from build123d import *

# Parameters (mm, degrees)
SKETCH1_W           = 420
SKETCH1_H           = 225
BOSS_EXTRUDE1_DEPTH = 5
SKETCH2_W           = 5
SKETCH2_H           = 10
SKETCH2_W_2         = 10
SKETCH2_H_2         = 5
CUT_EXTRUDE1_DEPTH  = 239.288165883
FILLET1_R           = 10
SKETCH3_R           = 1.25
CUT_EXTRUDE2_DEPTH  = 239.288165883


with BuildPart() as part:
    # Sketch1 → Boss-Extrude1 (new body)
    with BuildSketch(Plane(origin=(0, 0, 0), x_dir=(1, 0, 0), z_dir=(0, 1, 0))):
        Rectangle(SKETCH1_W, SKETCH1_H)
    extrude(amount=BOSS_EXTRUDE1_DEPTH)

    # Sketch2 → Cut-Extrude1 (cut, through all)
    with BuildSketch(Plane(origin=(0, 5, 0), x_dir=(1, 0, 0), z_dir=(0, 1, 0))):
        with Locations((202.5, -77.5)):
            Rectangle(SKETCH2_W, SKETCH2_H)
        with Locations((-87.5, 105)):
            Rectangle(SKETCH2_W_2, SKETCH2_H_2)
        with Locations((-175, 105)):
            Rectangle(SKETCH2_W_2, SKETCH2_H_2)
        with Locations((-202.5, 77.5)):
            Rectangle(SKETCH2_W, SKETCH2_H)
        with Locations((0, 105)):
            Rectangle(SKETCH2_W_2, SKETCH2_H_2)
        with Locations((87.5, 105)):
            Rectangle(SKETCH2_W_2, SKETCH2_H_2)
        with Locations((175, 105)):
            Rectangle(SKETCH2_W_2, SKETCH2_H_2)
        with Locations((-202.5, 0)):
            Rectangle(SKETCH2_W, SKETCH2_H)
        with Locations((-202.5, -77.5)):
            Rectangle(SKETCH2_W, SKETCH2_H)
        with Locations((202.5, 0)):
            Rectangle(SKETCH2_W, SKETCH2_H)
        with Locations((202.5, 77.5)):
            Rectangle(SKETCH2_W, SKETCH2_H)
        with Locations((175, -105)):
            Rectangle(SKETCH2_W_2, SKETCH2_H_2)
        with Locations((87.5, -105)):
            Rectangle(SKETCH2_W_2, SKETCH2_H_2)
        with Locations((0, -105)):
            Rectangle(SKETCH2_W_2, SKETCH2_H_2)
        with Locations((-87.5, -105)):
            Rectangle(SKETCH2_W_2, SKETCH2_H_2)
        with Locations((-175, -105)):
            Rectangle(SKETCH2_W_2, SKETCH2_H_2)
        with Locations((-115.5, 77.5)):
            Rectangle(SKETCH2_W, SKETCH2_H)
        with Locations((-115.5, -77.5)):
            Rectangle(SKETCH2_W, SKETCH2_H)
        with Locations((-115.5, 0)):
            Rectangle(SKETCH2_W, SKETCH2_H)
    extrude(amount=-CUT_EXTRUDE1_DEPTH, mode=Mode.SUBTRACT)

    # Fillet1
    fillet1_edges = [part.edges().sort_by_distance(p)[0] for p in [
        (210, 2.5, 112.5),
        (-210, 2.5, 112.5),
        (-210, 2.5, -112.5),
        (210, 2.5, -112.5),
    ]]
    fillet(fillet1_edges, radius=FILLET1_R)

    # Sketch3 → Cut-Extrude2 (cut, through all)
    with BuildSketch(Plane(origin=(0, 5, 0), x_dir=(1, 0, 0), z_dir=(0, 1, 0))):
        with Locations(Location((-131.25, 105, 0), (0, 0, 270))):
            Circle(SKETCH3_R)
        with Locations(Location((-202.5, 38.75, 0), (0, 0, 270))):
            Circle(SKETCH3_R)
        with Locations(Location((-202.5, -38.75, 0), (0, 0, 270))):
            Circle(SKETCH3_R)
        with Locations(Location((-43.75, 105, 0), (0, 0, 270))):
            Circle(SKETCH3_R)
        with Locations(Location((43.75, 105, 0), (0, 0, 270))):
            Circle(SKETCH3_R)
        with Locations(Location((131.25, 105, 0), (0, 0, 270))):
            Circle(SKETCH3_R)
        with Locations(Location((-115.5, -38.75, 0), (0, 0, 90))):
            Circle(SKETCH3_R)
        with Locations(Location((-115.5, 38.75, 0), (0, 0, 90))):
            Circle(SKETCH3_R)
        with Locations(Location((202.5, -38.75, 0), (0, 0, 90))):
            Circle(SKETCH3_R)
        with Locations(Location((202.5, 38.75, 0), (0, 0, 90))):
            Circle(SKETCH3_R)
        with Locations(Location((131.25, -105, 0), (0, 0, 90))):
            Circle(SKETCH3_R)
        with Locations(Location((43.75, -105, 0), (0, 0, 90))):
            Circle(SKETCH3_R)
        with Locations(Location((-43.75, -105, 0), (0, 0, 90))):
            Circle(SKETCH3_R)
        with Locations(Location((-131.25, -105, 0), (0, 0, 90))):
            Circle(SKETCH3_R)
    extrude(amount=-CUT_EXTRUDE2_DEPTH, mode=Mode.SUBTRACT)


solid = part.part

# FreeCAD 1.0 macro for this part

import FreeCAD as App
import Part
import Sketcher

V = App.Vector
Q = App.Units.Quantity


def edges_at(feature, points):
    """Names of the edges that pass closest to the given points."""
    edges = feature.Shape.Edges
    near = lambda p: min(range(len(edges)), key=lambda i: edges[i].distToShape(Part.Vertex(*p))[0])
    return sorted({f"Edge{near(p) + 1}" for p in points})


def add_polygon(sketch, points):
    """Adds a closed chain of lines whose ends are joined by coincident constraints."""
    first, n = sketch.GeometryCount, len(points)
    for a, b in zip(points, points[1:] + points[:1]):
        sketch.addGeometry(Part.LineSegment(App.Vector(*a, 0), App.Vector(*b, 0)), False)
    for i in range(n):
        sketch.addConstraint(Sketcher.Constraint("Coincident", first + i, 2, first + (i + 1) % n, 1))

doc = App.newDocument("Part")
body = doc.addObject("PartDesign::Body", "Body")

sketch1 = body.newObject("Sketcher::SketchObject", "Sketch")
sketch1.AttachmentSupport = (doc.getObject("XZ_Plane"), [""])
sketch1.MapMode = "FlatFace"
add_polygon(sketch1, [(-210, -112.5), (-210, 112.5), (210, 112.5), (210, -112.5)])
sketch1.addConstraint([
    Sketcher.Constraint("Vertical", 0),
    Sketcher.Constraint("Horizontal", 1),
    Sketcher.Constraint("Vertical", 2),
    Sketcher.Constraint("Horizontal", 3),
    Sketcher.Constraint("Symmetric", 0, 2, 2, 2, -1, 1),
    Sketcher.Constraint("DistanceX", 1, 1, 1, 2, Q("420 mm")),
    Sketcher.Constraint("DistanceY", 0, 1, 0, 2, Q("225 mm")),
])
pad1 = body.newObject("PartDesign::Pad", "Pad")
pad1.Profile = sketch1
pad1.Length = 5
pad1.Reversed = True

sketch2 = body.newObject("Sketcher::SketchObject", "Sketch001")
sketch2.AttachmentSupport = (doc.getObject("XZ_Plane"), [""])
sketch2.MapMode = "FlatFace"
sketch2.AttachmentOffset = App.Placement(V(0, 0, -5), App.Rotation())
add_polygon(sketch2, [(200, 72.5), (200, 82.5), (205, 82.5), (205, 72.5)])
add_polygon(sketch2, [(-92.5, -107.5), (-92.5, -102.5), (-82.5, -102.5), (-82.5, -107.5)])
add_polygon(sketch2, [(-180, -107.5), (-180, -102.5), (-170, -102.5), (-170, -107.5)])
add_polygon(sketch2, [(-205, -82.5), (-205, -72.5), (-200, -72.5), (-200, -82.5)])
add_polygon(sketch2, [(-5, -107.5), (-5, -102.5), (5, -102.5), (5, -107.5)])
add_polygon(sketch2, [(82.5, -107.5), (82.5, -102.5), (92.5, -102.5), (92.5, -107.5)])
add_polygon(sketch2, [(170, -107.5), (170, -102.5), (180, -102.5), (180, -107.5)])
add_polygon(sketch2, [(-205, -5), (-205, 5), (-200, 5), (-200, -5)])
add_polygon(sketch2, [(-205, 72.5), (-205, 82.5), (-200, 82.5), (-200, 72.5)])
add_polygon(sketch2, [(200, -5), (200, 5), (205, 5), (205, -5)])
add_polygon(sketch2, [(200, -82.5), (200, -72.5), (205, -72.5), (205, -82.5)])
add_polygon(sketch2, [(170, 102.5), (170, 107.5), (180, 107.5), (180, 102.5)])
add_polygon(sketch2, [(82.5, 102.5), (82.5, 107.5), (92.5, 107.5), (92.5, 102.5)])
add_polygon(sketch2, [(-5, 102.5), (-5, 107.5), (5, 107.5), (5, 102.5)])
add_polygon(sketch2, [(-92.5, 102.5), (-92.5, 107.5), (-82.5, 107.5), (-82.5, 102.5)])
add_polygon(sketch2, [(-180, 102.5), (-180, 107.5), (-170, 107.5), (-170, 102.5)])
add_polygon(sketch2, [(-118, -82.5), (-118, -72.5), (-113, -72.5), (-113, -82.5)])
add_polygon(sketch2, [(-118, 72.5), (-118, 82.5), (-113, 82.5), (-113, 72.5)])
add_polygon(sketch2, [(-118, -5), (-118, 5), (-113, 5), (-113, -5)])
sketch2.addConstraint([
    Sketcher.Constraint("Vertical", 0),
    Sketcher.Constraint("Horizontal", 1),
    Sketcher.Constraint("Vertical", 2),
    Sketcher.Constraint("Horizontal", 3),
    Sketcher.Constraint("Vertical", 4),
    Sketcher.Constraint("Horizontal", 5),
    Sketcher.Constraint("Vertical", 6),
    Sketcher.Constraint("Horizontal", 7),
    Sketcher.Constraint("Vertical", 8),
    Sketcher.Constraint("Horizontal", 9),
    Sketcher.Constraint("Vertical", 10),
    Sketcher.Constraint("Horizontal", 11),
    Sketcher.Constraint("Vertical", 12),
    Sketcher.Constraint("Horizontal", 13),
    Sketcher.Constraint("Vertical", 14),
    Sketcher.Constraint("Horizontal", 15),
    Sketcher.Constraint("Vertical", 16),
    Sketcher.Constraint("Horizontal", 17),
    Sketcher.Constraint("Vertical", 18),
    Sketcher.Constraint("Horizontal", 19),
    Sketcher.Constraint("Vertical", 20),
    Sketcher.Constraint("Horizontal", 21),
    Sketcher.Constraint("Vertical", 22),
    Sketcher.Constraint("Horizontal", 23),
    Sketcher.Constraint("Vertical", 24),
    Sketcher.Constraint("Horizontal", 25),
    Sketcher.Constraint("Vertical", 26),
    Sketcher.Constraint("Horizontal", 27),
    Sketcher.Constraint("Vertical", 28),
    Sketcher.Constraint("Horizontal", 29),
    Sketcher.Constraint("Vertical", 30),
    Sketcher.Constraint("Horizontal", 31),
    Sketcher.Constraint("Vertical", 32),
    Sketcher.Constraint("Horizontal", 33),
    Sketcher.Constraint("Vertical", 34),
    Sketcher.Constraint("Horizontal", 35),
    Sketcher.Constraint("Vertical", 36),
    Sketcher.Constraint("Horizontal", 37),
    Sketcher.Constraint("Vertical", 38),
    Sketcher.Constraint("Horizontal", 39),
    Sketcher.Constraint("Vertical", 40),
    Sketcher.Constraint("Horizontal", 41),
    Sketcher.Constraint("Vertical", 42),
    Sketcher.Constraint("Horizontal", 43),
    Sketcher.Constraint("Vertical", 44),
    Sketcher.Constraint("Horizontal", 45),
    Sketcher.Constraint("Vertical", 46),
    Sketcher.Constraint("Horizontal", 47),
    Sketcher.Constraint("Vertical", 48),
    Sketcher.Constraint("Horizontal", 49),
    Sketcher.Constraint("Vertical", 50),
    Sketcher.Constraint("Horizontal", 51),
    Sketcher.Constraint("Vertical", 52),
    Sketcher.Constraint("Horizontal", 53),
    Sketcher.Constraint("Vertical", 54),
    Sketcher.Constraint("Horizontal", 55),
    Sketcher.Constraint("Vertical", 56),
    Sketcher.Constraint("Horizontal", 57),
    Sketcher.Constraint("Vertical", 58),
    Sketcher.Constraint("Horizontal", 59),
    Sketcher.Constraint("Vertical", 60),
    Sketcher.Constraint("Horizontal", 61),
    Sketcher.Constraint("Vertical", 62),
    Sketcher.Constraint("Horizontal", 63),
    Sketcher.Constraint("Vertical", 64),
    Sketcher.Constraint("Horizontal", 65),
    Sketcher.Constraint("Vertical", 66),
    Sketcher.Constraint("Horizontal", 67),
    Sketcher.Constraint("Vertical", 68),
    Sketcher.Constraint("Horizontal", 69),
    Sketcher.Constraint("Vertical", 70),
    Sketcher.Constraint("Horizontal", 71),
    Sketcher.Constraint("Vertical", 72),
    Sketcher.Constraint("Horizontal", 73),
    Sketcher.Constraint("Vertical", 74),
    Sketcher.Constraint("Horizontal", 75),
    Sketcher.Constraint("Symmetric", 2, 2, 12, 2, -1, 1),
    Sketcher.Constraint("Symmetric", 0, 2, 14, 2, -1, 1),
    Sketcher.Constraint("Symmetric", 30, 2, 36, 2, -1, 1),
    Sketcher.Constraint("Symmetric", 28, 2, 38, 2, -1, 1),
    Sketcher.Constraint("Symmetric", 34, 2, 40, 2, -1, 1),
    Sketcher.Constraint("Symmetric", 32, 2, 42, 2, -1, 1),
    Sketcher.Constraint("Symmetric", 10, 2, 44, 2, -1, 1),
    Sketcher.Constraint("Symmetric", 8, 2, 46, 2, -1, 1),
    Sketcher.Constraint("Symmetric", 6, 2, 48, 2, -1, 1),
    Sketcher.Constraint("Symmetric", 4, 2, 50, 2, -1, 1),
    Sketcher.Constraint("Symmetric", 18, 2, 52, 2, -1, 1),
    Sketcher.Constraint("Symmetric", 16, 2, 54, 2, -1, 1),
    Sketcher.Constraint("Symmetric", 22, 2, 56, 2, -1, 1),
    Sketcher.Constraint("Symmetric", 20, 2, 58, 2, -1, 1),
    Sketcher.Constraint("Symmetric", 26, 2, 60, 2, -1, 1),
    Sketcher.Constraint("Symmetric", 24, 2, 62, 2, -1, 1),
    Sketcher.Constraint("Symmetric", 5, 2, 20, 2, -2),
    Sketcher.Constraint("Symmetric", 7, 2, 22, 2, -2),
    Sketcher.Constraint("Symmetric", 9, 2, 24, 2, -2),
    Sketcher.Constraint("Symmetric", 11, 2, 26, 2, -2),
    Sketcher.Constraint("Symmetric", 1, 2, 32, 2, -2),
    Sketcher.Constraint("Symmetric", 3, 2, 34, 2, -2),
    Sketcher.Constraint("Symmetric", 67, 2, 68, 2, -1),
    Sketcher.Constraint("Symmetric", 65, 2, 70, 2, -1),
    Sketcher.Constraint("Horizontal", 5, 2, 8, 2),
    Sketcher.Constraint("Horizontal", 7, 2, 10, 2),
    Sketcher.Constraint("Horizontal", 9, 2, 16, 2),
    Sketcher.Constraint("Horizontal", 11, 2, 18, 2),
    Sketcher.Constraint("Horizontal", 29, 2, 36, 2),
    Sketcher.Constraint("Horizontal", 41, 2, 64, 2),
    Sketcher.Constraint("Horizontal", 43, 2, 66, 2),
    Sketcher.Constraint("Horizontal", 37, 2, 72, 2),
    Sketcher.Constraint("Horizontal", 39, 2, 74, 2),
    Sketcher.Constraint("Vertical", 15, 2, 28, 2),
    Sketcher.Constraint("Vertical", 14, 2, 29, 2),
    Sketcher.Constraint("Vertical", 19, 2, 52, 2),
    Sketcher.Constraint("Vertical", 71, 2, 72, 2),
    Sketcher.Constraint("Vertical", 70, 2, 73, 2),
    Sketcher.Constraint("Equal", 7, 9),
    Sketcher.Constraint("Equal", 11, 17),
    Sketcher.Constraint("Equal", 43, 65),
    Sketcher.Constraint("Equal", 63, 0),
    Sketcher.Constraint("Equal", 75, 4),
    Sketcher.Constraint("Equal", 14, 28),
    Sketcher.Constraint("DistanceX", 1, 1, 1, 2, Q("5 mm")),
    Sketcher.Constraint("DistanceX", 5, 1, 5, 2, Q("10 mm")),
    Sketcher.Constraint("DistanceX", -1, 1, 0, 2, Q("200 mm")),
    Sketcher.Constraint("DistanceX", 8, 2, -1, 1, Q("180 mm")),
    Sketcher.Constraint("DistanceX", 64, 2, -1, 1, Q("118 mm")),
    Sketcher.Constraint("DistanceY", -1, 1, 0, 2, Q("82.5 mm")),
    Sketcher.Constraint("DistanceX", 4, 2, -1, 1, Q("92.5 mm")),
    Sketcher.Constraint("DistanceY", 4, 2, -1, 1, Q("102.5 mm")),
])
pocket1 = body.newObject("PartDesign::Pocket", "Pocket")
pocket1.Profile = sketch2
pocket1.Type = "ThroughAll"
pocket1.Reversed = True
doc.recompute()

fillet = body.newObject("PartDesign::Fillet", "Fillet")
fillet.Base = (pocket1, edges_at(pocket1, [
    (210, 2.5, 112.5),
    (-210, 2.5, 112.5),
    (-210, 2.5, -112.5),
    (210, 2.5, -112.5),
]))
fillet.Radius = 10

sketch3 = body.newObject("Sketcher::SketchObject", "Sketch002")
sketch3.AttachmentSupport = (doc.getObject("XZ_Plane"), [""])
sketch3.MapMode = "FlatFace"
sketch3.AttachmentOffset = App.Placement(V(0, 0, -5), App.Rotation())
sketch3.addGeometry([
    Part.Circle(V(-131.25, -105, 0), V(0, 0, 1), 1.25),
    Part.Circle(V(-202.5, -38.75, 0), V(0, 0, 1), 1.25),
    Part.Circle(V(-202.5, 38.75, 0), V(0, 0, 1), 1.25),
    Part.Circle(V(-43.75, -105, 0), V(0, 0, 1), 1.25),
    Part.Circle(V(43.75, -105, 0), V(0, 0, 1), 1.25),
    Part.Circle(V(131.25, -105, 0), V(0, 0, 1), 1.25),
    Part.Circle(V(-115.5, 38.75, 0), V(0, 0, 1), 1.25),
    Part.Circle(V(-115.5, -38.75, 0), V(0, 0, 1), 1.25),
    Part.Circle(V(202.5, 38.75, 0), V(0, 0, 1), 1.25),
    Part.Circle(V(202.5, -38.75, 0), V(0, 0, 1), 1.25),
    Part.Circle(V(131.25, 105, 0), V(0, 0, 1), 1.25),
    Part.Circle(V(43.75, 105, 0), V(0, 0, 1), 1.25),
    Part.Circle(V(-43.75, 105, 0), V(0, 0, 1), 1.25),
    Part.Circle(V(-131.25, 105, 0), V(0, 0, 1), 1.25),
], False)
sketch3.addConstraint([
    Sketcher.Constraint("Equal", 0, 1),
    Sketcher.Constraint("Equal", 1, 2),
    Sketcher.Constraint("Equal", 2, 3),
    Sketcher.Constraint("Equal", 3, 4),
    Sketcher.Constraint("Equal", 4, 5),
    Sketcher.Constraint("Equal", 5, 6),
    Sketcher.Constraint("Equal", 6, 7),
    Sketcher.Constraint("Equal", 7, 8),
    Sketcher.Constraint("Equal", 8, 9),
    Sketcher.Constraint("Equal", 9, 10),
    Sketcher.Constraint("Equal", 10, 11),
    Sketcher.Constraint("Equal", 11, 12),
    Sketcher.Constraint("Equal", 12, 13),
    Sketcher.Constraint("Symmetric", 1, 3, 8, 3, -1, 1),
    Sketcher.Constraint("Symmetric", 2, 3, 9, 3, -1, 1),
    Sketcher.Constraint("Symmetric", 0, 3, 10, 3, -1, 1),
    Sketcher.Constraint("Symmetric", 3, 3, 11, 3, -1, 1),
    Sketcher.Constraint("Symmetric", 4, 3, 12, 3, -1, 1),
    Sketcher.Constraint("Symmetric", 5, 3, 13, 3, -1, 1),
    Sketcher.Constraint("Symmetric", 3, 3, 4, 3, -2),
    Sketcher.Constraint("Symmetric", 0, 3, 5, 3, -2),
    Sketcher.Constraint("Symmetric", 2, 3, 8, 3, -2),
    Sketcher.Constraint("Symmetric", 6, 3, 7, 3, -1),
    Sketcher.Constraint("Horizontal", 0, 3, 3, 3),
    Sketcher.Constraint("Horizontal", 2, 3, 6, 3),
    Sketcher.Constraint("Diameter", 0, Q("2.5 mm")),
    Sketcher.Constraint("DistanceY", 0, 3, -1, 1, Q("105 mm")),
    Sketcher.Constraint("DistanceX", 0, 3, 4, 3, Q("175 mm")),
    Sketcher.Constraint("DistanceX", 2, 3, 6, 3, Q("87 mm")),
    Sketcher.Constraint("DistanceX", 6, 3, 8, 3, Q("318 mm")),
    Sketcher.Constraint("DistanceY", 1, 3, 2, 3, Q("77.5 mm")),
    Sketcher.Constraint("DistanceX", 0, 3, 3, 3, Q("87.5 mm")),
])
pocket2 = body.newObject("PartDesign::Pocket", "Pocket001")
pocket2.Profile = sketch3
pocket2.Type = "ThroughAll"
pocket2.Reversed = True

doc.recompute()
